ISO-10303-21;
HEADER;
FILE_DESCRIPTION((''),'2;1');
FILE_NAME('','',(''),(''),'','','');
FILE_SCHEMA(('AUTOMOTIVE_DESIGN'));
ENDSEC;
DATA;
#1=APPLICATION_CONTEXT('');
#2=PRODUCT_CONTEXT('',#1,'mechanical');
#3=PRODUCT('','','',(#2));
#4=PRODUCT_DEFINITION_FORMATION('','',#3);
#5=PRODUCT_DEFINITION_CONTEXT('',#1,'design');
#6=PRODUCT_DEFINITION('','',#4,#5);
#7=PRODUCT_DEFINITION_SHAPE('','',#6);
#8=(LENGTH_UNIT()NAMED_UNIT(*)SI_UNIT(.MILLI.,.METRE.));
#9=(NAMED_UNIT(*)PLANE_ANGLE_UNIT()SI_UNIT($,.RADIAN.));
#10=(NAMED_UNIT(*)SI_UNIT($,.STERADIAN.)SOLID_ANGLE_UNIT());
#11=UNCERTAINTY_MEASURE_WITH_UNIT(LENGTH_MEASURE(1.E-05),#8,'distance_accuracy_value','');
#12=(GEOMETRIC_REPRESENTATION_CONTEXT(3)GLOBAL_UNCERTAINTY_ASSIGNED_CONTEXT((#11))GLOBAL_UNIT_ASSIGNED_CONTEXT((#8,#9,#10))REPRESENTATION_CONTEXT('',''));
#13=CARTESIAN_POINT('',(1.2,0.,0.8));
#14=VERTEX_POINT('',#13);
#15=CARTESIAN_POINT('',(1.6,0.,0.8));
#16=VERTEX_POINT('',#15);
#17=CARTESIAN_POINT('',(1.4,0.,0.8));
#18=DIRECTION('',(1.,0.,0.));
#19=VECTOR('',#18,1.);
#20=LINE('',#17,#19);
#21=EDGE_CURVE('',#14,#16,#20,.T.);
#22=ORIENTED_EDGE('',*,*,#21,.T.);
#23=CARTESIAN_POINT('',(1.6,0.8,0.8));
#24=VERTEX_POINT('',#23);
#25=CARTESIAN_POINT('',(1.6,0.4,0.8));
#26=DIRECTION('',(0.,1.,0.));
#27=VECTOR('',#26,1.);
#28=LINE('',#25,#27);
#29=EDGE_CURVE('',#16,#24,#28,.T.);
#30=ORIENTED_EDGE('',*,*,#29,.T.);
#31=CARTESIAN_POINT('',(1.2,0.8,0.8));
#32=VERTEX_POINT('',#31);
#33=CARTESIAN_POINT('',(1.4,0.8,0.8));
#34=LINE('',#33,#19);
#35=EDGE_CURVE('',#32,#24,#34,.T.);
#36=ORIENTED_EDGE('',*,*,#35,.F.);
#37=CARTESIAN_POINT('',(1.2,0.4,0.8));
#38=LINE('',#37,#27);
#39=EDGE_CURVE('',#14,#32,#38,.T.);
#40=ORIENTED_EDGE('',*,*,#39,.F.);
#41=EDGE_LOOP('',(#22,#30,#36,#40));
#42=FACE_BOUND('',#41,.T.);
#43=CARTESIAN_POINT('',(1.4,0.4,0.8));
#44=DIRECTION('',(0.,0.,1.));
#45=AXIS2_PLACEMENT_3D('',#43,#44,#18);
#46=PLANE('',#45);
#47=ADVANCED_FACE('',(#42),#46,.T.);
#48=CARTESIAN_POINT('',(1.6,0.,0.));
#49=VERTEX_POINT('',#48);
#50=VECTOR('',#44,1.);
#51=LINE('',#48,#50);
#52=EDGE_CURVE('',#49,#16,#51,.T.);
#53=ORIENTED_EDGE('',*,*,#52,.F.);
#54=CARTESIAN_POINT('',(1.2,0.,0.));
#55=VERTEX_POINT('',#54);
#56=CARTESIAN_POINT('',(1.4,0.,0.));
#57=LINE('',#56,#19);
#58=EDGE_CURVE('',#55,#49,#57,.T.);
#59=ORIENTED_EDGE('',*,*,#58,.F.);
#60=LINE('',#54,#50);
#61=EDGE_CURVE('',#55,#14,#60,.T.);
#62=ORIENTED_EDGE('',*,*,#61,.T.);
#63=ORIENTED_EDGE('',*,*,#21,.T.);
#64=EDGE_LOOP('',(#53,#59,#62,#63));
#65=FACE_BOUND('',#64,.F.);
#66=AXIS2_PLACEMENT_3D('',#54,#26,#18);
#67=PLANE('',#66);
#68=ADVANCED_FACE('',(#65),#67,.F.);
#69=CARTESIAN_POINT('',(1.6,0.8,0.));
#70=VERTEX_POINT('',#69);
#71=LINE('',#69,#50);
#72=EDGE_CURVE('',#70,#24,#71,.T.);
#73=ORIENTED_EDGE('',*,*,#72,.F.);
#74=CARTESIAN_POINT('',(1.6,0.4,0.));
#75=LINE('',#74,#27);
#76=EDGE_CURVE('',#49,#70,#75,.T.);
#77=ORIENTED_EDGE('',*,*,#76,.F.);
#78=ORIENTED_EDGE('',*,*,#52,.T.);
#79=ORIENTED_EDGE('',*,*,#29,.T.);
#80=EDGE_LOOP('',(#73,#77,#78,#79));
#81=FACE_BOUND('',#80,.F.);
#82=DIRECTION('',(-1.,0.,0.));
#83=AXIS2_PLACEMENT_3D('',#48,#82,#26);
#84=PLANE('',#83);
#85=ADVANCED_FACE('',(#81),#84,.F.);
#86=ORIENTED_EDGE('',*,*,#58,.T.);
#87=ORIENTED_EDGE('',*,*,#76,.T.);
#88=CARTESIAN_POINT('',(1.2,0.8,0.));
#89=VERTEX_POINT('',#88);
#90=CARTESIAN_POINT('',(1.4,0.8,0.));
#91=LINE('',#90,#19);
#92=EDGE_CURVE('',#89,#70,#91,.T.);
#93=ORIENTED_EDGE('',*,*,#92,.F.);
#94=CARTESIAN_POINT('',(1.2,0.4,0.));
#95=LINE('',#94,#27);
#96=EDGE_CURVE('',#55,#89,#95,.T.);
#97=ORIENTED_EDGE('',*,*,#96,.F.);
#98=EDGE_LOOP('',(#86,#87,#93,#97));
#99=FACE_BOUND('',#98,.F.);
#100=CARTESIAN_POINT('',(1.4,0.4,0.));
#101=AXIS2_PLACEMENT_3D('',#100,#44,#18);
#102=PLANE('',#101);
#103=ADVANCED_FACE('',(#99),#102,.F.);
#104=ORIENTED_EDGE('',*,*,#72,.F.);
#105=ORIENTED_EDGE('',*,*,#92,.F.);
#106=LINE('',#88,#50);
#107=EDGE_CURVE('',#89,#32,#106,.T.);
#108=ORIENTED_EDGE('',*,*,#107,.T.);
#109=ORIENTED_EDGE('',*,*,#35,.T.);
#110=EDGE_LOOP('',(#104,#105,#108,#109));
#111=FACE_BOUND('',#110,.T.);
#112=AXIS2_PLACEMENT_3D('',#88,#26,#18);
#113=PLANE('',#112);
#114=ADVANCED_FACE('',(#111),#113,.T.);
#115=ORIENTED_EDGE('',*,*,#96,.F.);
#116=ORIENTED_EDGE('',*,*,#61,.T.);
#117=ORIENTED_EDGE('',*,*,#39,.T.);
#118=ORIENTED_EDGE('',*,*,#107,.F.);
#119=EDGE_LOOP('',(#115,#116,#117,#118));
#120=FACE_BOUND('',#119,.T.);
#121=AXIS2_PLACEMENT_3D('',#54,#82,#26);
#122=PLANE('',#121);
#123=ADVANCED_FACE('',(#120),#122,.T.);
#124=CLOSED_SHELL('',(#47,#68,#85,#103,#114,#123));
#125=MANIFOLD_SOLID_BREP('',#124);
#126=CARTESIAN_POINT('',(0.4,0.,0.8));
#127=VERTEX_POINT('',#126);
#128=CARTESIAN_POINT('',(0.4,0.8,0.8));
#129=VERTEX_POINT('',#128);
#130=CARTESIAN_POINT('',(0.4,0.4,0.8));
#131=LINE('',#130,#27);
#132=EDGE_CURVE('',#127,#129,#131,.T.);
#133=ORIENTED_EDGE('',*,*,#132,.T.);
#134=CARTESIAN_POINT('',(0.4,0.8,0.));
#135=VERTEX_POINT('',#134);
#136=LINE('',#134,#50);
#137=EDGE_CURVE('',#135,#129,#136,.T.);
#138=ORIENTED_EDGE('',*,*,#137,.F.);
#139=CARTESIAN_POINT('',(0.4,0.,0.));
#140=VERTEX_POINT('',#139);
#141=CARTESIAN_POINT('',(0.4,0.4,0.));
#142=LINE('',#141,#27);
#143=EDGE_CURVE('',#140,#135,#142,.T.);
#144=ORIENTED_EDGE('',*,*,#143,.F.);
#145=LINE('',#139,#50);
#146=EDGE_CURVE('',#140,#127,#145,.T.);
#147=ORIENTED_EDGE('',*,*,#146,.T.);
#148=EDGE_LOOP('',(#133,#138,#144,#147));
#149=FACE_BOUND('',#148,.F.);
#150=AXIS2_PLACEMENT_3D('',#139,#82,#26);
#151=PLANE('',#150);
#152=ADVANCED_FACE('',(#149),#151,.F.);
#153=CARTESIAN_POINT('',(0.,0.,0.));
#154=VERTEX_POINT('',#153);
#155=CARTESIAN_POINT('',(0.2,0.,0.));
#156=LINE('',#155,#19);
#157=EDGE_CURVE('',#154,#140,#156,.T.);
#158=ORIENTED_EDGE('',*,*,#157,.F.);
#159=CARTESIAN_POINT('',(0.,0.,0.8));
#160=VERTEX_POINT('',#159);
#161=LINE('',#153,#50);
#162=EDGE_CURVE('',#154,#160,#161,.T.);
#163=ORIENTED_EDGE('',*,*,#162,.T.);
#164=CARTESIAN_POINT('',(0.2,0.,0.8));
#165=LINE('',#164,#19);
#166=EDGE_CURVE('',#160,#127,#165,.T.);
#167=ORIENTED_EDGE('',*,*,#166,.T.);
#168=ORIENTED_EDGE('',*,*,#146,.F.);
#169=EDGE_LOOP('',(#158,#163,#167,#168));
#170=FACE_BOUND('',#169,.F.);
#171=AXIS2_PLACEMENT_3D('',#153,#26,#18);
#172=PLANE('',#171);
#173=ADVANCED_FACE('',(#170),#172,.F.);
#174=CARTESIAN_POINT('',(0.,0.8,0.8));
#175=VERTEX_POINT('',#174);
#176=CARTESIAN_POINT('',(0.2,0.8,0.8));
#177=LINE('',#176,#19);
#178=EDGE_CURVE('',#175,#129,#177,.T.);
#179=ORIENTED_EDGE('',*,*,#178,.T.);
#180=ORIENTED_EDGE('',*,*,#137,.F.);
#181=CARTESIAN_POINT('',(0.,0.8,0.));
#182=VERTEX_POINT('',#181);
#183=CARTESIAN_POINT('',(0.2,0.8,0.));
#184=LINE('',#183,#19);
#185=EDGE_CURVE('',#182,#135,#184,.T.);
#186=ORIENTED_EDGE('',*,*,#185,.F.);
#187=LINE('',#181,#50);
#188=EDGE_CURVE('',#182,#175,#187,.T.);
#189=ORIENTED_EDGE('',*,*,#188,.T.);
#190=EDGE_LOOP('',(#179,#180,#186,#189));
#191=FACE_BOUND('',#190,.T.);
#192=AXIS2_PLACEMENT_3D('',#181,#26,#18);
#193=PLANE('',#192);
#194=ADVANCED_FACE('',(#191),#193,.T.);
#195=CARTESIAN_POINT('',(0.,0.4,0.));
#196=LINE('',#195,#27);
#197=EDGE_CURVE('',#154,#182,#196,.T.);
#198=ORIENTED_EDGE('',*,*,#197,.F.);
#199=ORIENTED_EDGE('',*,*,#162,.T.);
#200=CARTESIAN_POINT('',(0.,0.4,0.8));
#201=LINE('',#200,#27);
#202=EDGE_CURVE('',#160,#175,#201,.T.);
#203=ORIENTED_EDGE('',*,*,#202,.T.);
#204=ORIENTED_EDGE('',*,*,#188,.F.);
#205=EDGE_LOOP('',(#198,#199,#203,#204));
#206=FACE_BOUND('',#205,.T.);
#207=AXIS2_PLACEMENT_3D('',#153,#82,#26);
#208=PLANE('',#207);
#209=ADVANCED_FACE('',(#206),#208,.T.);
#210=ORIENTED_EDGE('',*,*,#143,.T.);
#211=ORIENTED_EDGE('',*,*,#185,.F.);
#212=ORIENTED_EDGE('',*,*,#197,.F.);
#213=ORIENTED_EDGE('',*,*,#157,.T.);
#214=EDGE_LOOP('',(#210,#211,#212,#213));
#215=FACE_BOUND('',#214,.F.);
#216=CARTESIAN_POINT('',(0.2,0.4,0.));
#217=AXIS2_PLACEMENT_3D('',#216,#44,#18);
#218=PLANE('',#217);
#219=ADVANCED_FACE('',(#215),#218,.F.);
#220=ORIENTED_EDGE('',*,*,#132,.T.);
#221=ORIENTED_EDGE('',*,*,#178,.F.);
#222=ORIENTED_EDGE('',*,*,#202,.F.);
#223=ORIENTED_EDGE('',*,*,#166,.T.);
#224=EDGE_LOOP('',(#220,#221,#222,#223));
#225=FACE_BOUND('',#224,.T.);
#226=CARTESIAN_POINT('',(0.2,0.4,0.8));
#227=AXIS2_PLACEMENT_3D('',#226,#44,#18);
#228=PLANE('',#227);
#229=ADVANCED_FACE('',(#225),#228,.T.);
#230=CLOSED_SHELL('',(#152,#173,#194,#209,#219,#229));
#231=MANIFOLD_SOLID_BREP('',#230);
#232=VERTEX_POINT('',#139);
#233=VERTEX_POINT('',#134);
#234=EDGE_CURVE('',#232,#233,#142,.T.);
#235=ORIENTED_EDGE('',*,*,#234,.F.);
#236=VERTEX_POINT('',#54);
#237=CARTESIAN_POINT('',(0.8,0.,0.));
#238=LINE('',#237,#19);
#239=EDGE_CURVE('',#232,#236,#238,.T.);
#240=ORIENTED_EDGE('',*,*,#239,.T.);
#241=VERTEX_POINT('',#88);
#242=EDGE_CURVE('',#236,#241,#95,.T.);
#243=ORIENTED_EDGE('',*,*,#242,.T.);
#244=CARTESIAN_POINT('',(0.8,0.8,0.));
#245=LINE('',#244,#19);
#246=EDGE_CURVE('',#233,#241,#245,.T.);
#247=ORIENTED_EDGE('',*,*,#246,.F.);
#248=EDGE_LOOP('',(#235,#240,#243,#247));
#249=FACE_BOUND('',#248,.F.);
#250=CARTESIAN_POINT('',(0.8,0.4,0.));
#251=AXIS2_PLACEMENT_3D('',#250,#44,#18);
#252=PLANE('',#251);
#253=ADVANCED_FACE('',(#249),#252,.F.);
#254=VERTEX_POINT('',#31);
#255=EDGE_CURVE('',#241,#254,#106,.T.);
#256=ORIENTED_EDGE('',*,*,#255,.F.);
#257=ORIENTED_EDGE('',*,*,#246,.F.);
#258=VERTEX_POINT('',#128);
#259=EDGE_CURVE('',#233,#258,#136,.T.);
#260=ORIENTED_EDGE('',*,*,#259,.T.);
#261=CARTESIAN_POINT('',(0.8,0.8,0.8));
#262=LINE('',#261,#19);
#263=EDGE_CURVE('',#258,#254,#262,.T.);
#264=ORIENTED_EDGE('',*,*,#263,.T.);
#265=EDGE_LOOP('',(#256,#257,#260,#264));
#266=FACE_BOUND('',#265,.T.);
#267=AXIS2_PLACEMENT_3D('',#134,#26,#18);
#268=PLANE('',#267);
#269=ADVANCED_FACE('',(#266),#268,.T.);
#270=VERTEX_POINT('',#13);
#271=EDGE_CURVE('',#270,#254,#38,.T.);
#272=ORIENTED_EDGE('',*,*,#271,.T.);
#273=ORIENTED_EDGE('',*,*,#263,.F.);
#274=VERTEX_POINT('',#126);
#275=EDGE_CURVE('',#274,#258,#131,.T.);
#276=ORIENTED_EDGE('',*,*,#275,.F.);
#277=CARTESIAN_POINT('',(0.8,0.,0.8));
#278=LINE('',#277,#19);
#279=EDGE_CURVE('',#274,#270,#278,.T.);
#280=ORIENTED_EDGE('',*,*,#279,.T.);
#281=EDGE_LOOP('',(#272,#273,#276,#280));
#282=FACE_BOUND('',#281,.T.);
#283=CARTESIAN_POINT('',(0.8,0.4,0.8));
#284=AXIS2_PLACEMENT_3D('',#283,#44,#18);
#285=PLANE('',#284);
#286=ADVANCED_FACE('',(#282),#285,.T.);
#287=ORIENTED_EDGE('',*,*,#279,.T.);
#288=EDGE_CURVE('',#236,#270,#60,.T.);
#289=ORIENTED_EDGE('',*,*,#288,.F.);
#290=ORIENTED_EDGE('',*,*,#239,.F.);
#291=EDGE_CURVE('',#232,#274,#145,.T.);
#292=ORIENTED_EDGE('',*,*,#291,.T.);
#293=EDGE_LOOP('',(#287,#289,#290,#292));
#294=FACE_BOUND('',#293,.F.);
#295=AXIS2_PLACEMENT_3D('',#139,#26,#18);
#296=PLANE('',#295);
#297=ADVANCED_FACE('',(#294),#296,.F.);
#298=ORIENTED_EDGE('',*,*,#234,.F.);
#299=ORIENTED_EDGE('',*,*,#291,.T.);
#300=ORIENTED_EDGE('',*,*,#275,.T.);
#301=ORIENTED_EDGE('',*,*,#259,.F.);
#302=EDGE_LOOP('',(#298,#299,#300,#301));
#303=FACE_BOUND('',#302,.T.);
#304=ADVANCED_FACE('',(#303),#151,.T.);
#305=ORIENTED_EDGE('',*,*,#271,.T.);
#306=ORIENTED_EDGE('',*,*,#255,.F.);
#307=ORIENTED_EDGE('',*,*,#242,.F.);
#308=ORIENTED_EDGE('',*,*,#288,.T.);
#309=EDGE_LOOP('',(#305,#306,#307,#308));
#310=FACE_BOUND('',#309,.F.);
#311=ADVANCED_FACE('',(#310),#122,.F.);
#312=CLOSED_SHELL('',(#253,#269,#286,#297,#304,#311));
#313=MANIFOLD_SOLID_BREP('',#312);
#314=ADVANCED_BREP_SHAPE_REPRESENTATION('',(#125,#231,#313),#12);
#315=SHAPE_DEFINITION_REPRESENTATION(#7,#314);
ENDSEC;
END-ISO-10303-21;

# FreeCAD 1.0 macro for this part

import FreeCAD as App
import Part
import Sketcher
from FreeCAD import Vector

doc = App.newDocument("Part")
body = doc.addObject("PartDesign::Body", "Body")

# Sketch on XY plane
sketch1 = body.newObject("Sketcher::SketchObject", "Sketch")
sketch1.AttachmentSupport = (doc.getObject("XY_Plane"), [""])
sketch1.MapMode = "FlatFace"
sketch1.addGeometry(Part.LineSegment(Vector(0, 0.8, 0), Vector(0, 0, 0)), False)
sketch1.addGeometry(Part.LineSegment(Vector(0, 0, 0), Vector(0.4, 0, 0)), False)
sketch1.addGeometry(Part.LineSegment(Vector(0.4, 0, 0), Vector(0.4, 0.8, 0)), False)
sketch1.addGeometry(Part.LineSegment(Vector(0.4, 0.8, 0), Vector(0, 0.8, 0)), False)
sketch1.addConstraint(Sketcher.Constraint("Coincident", 0, 2, 1, 1))
sketch1.addConstraint(Sketcher.Constraint("Coincident", 1, 2, 2, 1))
sketch1.addConstraint(Sketcher.Constraint("Coincident", 2, 2, 3, 1))
sketch1.addConstraint(Sketcher.Constraint("Coincident", 3, 2, 0, 1))
sketch1.addConstraint(Sketcher.Constraint("Vertical", 0))
sketch1.addConstraint(Sketcher.Constraint("Horizontal", 1))
sketch1.addConstraint(Sketcher.Constraint("Vertical", 2))
sketch1.addConstraint(Sketcher.Constraint("Horizontal", 3))
sketch1.addConstraint(Sketcher.Constraint("Coincident", 0, 2, -1, 1))
sketch1.addConstraint(Sketcher.Constraint("DistanceX", 1, 1, 1, 2, 0.4))
sketch1.addConstraint(Sketcher.Constraint("DistanceY", 0, 2, 0, 1, 0.8))
pad1 = body.newObject("PartDesign::Pad", "Pad")
pad1.Profile = sketch1
pad1.Length = 0.8
body2 = doc.addObject("PartDesign::Body", "Body001")

# Sketch on XY plane
sketch2 = body2.newObject("Sketcher::SketchObject", "Sketch001")
sketch2.AttachmentSupport = (doc.getObject("XY_Plane001"), [""])
sketch2.MapMode = "FlatFace"
sketch2.addGeometry(Part.LineSegment(Vector(0.4, 0.8, 0), Vector(0.4, 0, 0)), False)
sketch2.addGeometry(Part.LineSegment(Vector(0.4, 0, 0), Vector(1.2, 0, 0)), False)
sketch2.addGeometry(Part.LineSegment(Vector(1.2, 0, 0), Vector(1.2, 0.8, 0)), False)
sketch2.addGeometry(Part.LineSegment(Vector(1.2, 0.8, 0), Vector(0.4, 0.8, 0)), False)
sketch2.addConstraint(Sketcher.Constraint("Coincident", 0, 2, 1, 1))
sketch2.addConstraint(Sketcher.Constraint("Coincident", 1, 2, 2, 1))
sketch2.addConstraint(Sketcher.Constraint("Coincident", 2, 2, 3, 1))
sketch2.addConstraint(Sketcher.Constraint("Coincident", 3, 2, 0, 1))
sketch2.addConstraint(Sketcher.Constraint("Vertical", 0))
sketch2.addConstraint(Sketcher.Constraint("Horizontal", 1))
sketch2.addConstraint(Sketcher.Constraint("Vertical", 2))
sketch2.addConstraint(Sketcher.Constraint("Horizontal", 3))
sketch2.addConstraint(Sketcher.Constraint("PointOnObject", 0, 2, -1))
sketch2.addConstraint(Sketcher.Constraint("Equal", 3, 0))
sketch2.addConstraint(Sketcher.Constraint("DistanceX", 1, 1, 1, 2, 0.8))
sketch2.addConstraint(Sketcher.Constraint("DistanceX", -1, 1, 0, 2, 0.4))
pad2 = body2.newObject("PartDesign::Pad", "Pad001")
pad2.Profile = sketch2
pad2.Length = 0.8
body3 = doc.addObject("PartDesign::Body", "Body002")

# Sketch on XY plane
sketch3 = body3.newObject("Sketcher::SketchObject", "Sketch002")
sketch3.AttachmentSupport = (doc.getObject("XY_Plane002"), [""])
sketch3.MapMode = "FlatFace"
sketch3.addGeometry(Part.LineSegment(Vector(1.2, 0.8, 0), Vector(1.2, 0, 0)), False)
sketch3.addGeometry(Part.LineSegment(Vector(1.2, 0, 0), Vector(1.6, 0, 0)), False)
sketch3.addGeometry(Part.LineSegment(Vector(1.6, 0, 0), Vector(1.6, 0.8, 0)), False)
sketch3.addGeometry(Part.LineSegment(Vector(1.6, 0.8, 0), Vector(1.2, 0.8, 0)), False)
sketch3.addConstraint(Sketcher.Constraint("Coincident", 0, 2, 1, 1))
sketch3.addConstraint(Sketcher.Constraint("Coincident", 1, 2, 2, 1))
sketch3.addConstraint(Sketcher.Constraint("Coincident", 2, 2, 3, 1))
sketch3.addConstraint(Sketcher.Constraint("Coincident", 3, 2, 0, 1))
sketch3.addConstraint(Sketcher.Constraint("Vertical", 0))
sketch3.addConstraint(Sketcher.Constraint("Horizontal", 1))
sketch3.addConstraint(Sketcher.Constraint("Vertical", 2))
sketch3.addConstraint(Sketcher.Constraint("Horizontal", 3))
sketch3.addConstraint(Sketcher.Constraint("PointOnObject", 0, 2, -1))
sketch3.addConstraint(Sketcher.Constraint("DistanceX", 1, 1, 1, 2, 0.4))
sketch3.addConstraint(Sketcher.Constraint("DistanceY", 0, 2, 0, 1, 0.8))
sketch3.addConstraint(Sketcher.Constraint("DistanceX", -1, 1, 0, 2, 1.2))
pad3 = body3.newObject("PartDesign::Pad", "Pad002")
pad3.Profile = sketch3
pad3.Length = 0.8

doc.recompute()
